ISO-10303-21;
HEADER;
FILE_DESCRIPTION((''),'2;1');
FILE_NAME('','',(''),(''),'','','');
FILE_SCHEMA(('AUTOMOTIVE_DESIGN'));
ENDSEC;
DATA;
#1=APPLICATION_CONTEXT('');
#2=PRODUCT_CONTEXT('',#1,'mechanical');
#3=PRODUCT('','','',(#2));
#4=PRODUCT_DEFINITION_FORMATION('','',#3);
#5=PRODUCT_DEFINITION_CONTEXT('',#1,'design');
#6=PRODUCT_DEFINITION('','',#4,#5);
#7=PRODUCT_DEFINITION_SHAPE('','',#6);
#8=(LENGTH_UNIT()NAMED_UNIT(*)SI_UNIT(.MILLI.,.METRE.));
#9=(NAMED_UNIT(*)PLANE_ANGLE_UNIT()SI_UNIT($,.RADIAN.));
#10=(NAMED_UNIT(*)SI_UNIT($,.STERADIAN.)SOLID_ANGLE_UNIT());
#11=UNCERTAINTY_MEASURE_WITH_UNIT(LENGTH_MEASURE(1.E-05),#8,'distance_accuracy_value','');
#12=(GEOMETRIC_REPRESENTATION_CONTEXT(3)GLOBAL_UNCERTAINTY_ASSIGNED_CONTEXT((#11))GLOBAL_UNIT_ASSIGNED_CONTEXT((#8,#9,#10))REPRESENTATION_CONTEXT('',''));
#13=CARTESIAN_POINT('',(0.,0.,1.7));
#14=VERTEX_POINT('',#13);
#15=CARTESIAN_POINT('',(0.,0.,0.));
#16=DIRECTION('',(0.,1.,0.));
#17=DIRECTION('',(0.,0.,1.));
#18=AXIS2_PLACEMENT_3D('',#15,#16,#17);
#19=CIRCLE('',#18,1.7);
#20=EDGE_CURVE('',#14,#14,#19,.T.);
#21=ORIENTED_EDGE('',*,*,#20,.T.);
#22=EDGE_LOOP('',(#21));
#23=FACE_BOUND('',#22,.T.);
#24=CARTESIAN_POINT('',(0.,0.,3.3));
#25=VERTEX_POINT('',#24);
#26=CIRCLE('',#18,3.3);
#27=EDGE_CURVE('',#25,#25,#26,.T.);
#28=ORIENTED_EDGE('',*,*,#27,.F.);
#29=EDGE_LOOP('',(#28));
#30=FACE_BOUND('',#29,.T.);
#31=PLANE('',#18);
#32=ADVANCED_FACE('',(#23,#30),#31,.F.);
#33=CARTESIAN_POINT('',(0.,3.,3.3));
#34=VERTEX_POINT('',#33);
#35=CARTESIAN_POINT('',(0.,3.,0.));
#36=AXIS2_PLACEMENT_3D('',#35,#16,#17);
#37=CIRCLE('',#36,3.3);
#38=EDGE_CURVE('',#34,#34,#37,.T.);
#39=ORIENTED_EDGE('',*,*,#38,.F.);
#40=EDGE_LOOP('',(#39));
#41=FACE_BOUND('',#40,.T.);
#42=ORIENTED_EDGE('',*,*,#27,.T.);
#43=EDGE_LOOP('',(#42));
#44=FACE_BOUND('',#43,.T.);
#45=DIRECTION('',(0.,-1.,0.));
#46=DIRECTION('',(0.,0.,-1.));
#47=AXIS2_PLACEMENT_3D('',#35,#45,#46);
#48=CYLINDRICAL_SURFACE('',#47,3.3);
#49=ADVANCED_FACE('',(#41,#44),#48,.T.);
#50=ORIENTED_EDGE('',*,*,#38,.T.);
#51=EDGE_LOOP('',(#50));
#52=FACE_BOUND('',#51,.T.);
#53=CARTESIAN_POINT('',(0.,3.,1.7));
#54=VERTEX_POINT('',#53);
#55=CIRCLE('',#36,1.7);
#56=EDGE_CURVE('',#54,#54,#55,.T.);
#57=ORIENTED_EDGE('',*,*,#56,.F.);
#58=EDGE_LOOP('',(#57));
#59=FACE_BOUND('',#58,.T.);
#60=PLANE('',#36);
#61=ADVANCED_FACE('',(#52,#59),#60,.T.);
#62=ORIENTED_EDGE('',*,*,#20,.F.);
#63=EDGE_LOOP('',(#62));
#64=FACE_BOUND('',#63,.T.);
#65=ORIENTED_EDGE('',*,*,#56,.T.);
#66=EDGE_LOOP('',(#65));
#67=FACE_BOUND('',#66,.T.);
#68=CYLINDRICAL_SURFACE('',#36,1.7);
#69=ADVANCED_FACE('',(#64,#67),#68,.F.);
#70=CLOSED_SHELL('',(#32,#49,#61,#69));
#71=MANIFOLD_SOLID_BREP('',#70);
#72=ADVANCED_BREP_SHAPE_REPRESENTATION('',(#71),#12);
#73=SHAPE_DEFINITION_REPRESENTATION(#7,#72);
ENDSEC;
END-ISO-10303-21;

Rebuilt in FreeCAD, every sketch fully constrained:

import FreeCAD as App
import Part
import Sketcher

V = App.Vector

doc = App.newDocument("Part")
body = doc.addObject("PartDesign::Body", "Body")

sketch1 = body.newObject("Sketcher::SketchObject", "Sketch")
sketch1.AttachmentSupport = (doc.getObject("XZ_Plane"), [""])
sketch1.MapMode = "FlatFace"
sketch1.addGeometry(Part.Circle(V(0, 0, 0), V(0, 0, 1), 3.3), False)
sketch1.addConstraint(Sketcher.Constraint("Coincident", 0, 3, -1, 1))
sketch1.addConstraint(Sketcher.Constraint("Diameter", 0, 6.6))
pad1 = body.newObject("PartDesign::Pad", "Pad")
pad1.Profile = sketch1
pad1.Length = 3
pad1.Reversed = True

sketch2 = body.newObject("Sketcher::SketchObject", "Sketch001")
sketch2.AttachmentSupport = (doc.getObject("XZ_Plane"), [""])
sketch2.MapMode = "FlatFace"
sketch2.AttachmentOffset = App.Placement(V(0, 0, -3), App.Rotation())
sketch2.addGeometry(Part.Circle(V(0, 0, 0), V(0, 0, 1), 1.7), False)
sketch2.addConstraint(Sketcher.Constraint("Coincident", 0, 3, -1, 1))
sketch2.addConstraint(Sketcher.Constraint("Diameter", 0, 3.4))
doc.recompute()
hole = body.newObject("PartDesign::Hole", "Hole")
hole.Profile = sketch2
hole.ThreadType = "None"
hole.Diameter = 3.4
hole.DepthType = "ThroughAll"
hole.Reversed = True

doc.recompute()
